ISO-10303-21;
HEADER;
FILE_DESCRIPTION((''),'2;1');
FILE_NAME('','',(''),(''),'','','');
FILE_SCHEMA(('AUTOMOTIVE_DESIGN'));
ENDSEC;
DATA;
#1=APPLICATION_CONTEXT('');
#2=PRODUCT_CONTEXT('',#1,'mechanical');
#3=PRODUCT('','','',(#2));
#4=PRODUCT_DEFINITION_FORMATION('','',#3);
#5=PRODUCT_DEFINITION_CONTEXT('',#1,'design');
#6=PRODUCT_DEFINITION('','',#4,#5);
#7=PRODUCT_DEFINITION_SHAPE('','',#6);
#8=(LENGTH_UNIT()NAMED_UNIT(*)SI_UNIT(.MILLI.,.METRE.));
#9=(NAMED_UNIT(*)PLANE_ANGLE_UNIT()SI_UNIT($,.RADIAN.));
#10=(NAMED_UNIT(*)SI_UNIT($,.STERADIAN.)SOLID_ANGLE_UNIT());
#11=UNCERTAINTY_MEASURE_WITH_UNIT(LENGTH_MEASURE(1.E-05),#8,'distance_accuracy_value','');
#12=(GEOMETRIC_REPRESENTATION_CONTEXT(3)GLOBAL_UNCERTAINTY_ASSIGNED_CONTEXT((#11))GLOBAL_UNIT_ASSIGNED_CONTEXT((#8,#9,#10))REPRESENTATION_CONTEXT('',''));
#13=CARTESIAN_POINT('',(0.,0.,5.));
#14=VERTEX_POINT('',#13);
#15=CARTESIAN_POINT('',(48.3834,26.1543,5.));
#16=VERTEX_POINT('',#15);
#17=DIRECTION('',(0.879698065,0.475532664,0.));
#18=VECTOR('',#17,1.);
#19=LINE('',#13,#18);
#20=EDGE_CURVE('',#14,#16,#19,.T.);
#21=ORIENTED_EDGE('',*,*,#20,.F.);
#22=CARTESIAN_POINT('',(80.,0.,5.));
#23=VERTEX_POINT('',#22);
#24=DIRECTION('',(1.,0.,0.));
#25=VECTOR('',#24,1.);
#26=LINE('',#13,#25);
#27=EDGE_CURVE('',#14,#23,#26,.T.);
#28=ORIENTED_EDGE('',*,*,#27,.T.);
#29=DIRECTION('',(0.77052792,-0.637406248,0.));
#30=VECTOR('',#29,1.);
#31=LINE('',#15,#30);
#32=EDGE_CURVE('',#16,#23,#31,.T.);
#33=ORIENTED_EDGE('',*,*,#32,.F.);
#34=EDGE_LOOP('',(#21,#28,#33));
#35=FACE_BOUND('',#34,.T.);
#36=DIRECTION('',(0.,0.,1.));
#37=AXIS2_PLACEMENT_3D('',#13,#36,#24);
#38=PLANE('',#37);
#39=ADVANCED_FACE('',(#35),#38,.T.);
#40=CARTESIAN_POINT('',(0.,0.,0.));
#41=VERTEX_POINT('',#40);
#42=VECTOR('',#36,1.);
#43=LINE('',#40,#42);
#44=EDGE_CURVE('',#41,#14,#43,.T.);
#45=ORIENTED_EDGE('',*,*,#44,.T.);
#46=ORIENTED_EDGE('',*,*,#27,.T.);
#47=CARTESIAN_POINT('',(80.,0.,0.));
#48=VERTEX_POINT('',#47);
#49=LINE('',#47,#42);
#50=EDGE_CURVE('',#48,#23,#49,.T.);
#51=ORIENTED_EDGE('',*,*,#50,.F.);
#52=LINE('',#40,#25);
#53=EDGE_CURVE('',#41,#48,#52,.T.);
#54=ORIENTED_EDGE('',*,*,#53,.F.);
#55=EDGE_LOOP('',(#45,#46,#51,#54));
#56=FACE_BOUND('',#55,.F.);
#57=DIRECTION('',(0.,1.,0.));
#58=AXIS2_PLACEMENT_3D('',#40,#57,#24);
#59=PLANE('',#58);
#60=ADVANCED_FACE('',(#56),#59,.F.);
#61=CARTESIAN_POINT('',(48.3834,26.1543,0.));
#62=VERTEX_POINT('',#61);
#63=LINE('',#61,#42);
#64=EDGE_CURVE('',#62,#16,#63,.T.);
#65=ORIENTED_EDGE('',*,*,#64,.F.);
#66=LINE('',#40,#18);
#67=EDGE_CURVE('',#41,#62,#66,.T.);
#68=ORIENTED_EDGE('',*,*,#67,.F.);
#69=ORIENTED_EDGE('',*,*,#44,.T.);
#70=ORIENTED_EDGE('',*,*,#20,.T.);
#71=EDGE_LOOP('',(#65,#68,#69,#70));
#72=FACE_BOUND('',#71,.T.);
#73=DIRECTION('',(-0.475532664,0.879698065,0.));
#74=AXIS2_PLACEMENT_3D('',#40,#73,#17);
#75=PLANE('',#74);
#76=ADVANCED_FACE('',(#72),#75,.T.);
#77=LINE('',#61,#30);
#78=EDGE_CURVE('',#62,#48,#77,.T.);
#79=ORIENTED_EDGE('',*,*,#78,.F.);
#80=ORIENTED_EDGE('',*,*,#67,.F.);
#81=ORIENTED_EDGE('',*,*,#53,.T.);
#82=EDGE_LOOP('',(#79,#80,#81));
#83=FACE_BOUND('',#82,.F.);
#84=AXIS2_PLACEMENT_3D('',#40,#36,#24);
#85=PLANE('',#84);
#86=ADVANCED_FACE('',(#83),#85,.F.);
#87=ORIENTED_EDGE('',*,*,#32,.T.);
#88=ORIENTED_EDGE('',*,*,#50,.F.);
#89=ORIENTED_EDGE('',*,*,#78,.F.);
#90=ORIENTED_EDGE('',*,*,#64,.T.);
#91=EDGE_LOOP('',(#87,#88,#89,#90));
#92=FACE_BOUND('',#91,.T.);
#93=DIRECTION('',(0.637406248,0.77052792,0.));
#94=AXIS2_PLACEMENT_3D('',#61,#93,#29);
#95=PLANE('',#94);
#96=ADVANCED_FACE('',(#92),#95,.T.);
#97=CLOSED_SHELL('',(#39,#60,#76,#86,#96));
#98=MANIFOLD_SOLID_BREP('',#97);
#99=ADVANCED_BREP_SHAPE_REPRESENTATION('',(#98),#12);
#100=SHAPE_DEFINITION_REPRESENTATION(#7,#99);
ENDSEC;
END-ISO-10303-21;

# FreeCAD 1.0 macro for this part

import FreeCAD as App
import Part
import Sketcher

V = App.Vector

doc = App.newDocument("Part")
body = doc.addObject("PartDesign::Body", "Body")

# Sketch on XY plane
sketch1 = body.newObject("Sketcher::SketchObject", "Sketch")
sketch1.AttachmentSupport = (doc.getObject("XY_Plane"), [""])
sketch1.MapMode = "FlatFace"
sketch1.addGeometry(Part.LineSegment(V(48, 26, 0), V(0, 0, 0)), False)
sketch1.addGeometry(Part.LineSegment(V(0, 0, 0), V(80, 0, 0)), False)
sketch1.addGeometry(Part.LineSegment(V(80, 0, 0), V(48, 26, 0)), False)
sketch1.addConstraint(Sketcher.Constraint("Coincident", 0, 2, 1, 1))
sketch1.addConstraint(Sketcher.Constraint("Coincident", 1, 2, 2, 1))
sketch1.addConstraint(Sketcher.Constraint("Coincident", 2, 2, 0, 1))
sketch1.addConstraint(Sketcher.Constraint("Horizontal", 1))
sketch1.addConstraint(Sketcher.Constraint("Coincident", 0, 2, -1, 1))
sketch1.addConstraint(Sketcher.Constraint("DistanceX", 1, 1, 1, 2, 80.0))
sketch1.addConstraint(Sketcher.Constraint("Distance", 0, 55.0))
sketch1.addConstraint(Sketcher.Constraint("Distance", 2, 41.0324))
pad1 = body.newObject("PartDesign::Pad", "Pad")
pad1.Profile = sketch1
pad1.Length = 5

doc.recompute()
